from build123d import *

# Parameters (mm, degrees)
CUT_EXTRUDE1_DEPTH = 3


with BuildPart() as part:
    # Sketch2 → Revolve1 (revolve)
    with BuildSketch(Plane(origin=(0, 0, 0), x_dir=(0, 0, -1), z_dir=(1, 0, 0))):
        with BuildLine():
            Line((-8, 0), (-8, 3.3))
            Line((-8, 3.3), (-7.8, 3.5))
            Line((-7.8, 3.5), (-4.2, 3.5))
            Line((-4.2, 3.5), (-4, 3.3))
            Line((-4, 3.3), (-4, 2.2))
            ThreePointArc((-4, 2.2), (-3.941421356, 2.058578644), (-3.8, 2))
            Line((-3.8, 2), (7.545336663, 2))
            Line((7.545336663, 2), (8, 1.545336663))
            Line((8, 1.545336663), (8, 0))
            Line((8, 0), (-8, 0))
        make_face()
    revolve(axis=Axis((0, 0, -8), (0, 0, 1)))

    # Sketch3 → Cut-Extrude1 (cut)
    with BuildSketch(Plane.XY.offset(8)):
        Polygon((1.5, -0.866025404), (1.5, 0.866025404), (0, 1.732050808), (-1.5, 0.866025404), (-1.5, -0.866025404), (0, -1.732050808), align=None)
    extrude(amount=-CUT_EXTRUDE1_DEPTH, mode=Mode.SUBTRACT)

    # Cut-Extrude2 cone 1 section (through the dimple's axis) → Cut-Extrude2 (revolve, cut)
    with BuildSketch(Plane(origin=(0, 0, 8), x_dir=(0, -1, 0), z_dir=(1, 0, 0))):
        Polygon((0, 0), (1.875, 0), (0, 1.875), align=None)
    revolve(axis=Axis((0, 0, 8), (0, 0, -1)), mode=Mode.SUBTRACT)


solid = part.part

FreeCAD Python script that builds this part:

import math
import FreeCAD as App
import Part
import Sketcher
Q = App.Units.Quantity

doc = App.newDocument("Part")
body = doc.addObject("PartDesign::Body", "Body")

sketch1 = body.newObject("Sketcher::SketchObject", "Sketch")
sketch1.AttachmentSupport = (doc.getObject("YZ_Plane"), [""])
sketch1.MapMode = "FlatFace"
sketch1.addGeometry(Part.LineSegment(App.Vector(3.3, 8, 0), App.Vector(0, 8, 0)), False)
sketch1.addGeometry(Part.LineSegment(App.Vector(0, 8, 0), App.Vector(0, -8, 0)), False)
sketch1.addGeometry(Part.LineSegment(App.Vector(0, -8, 0), App.Vector(1.55, -8, 0)), False)
sketch1.addGeometry(Part.LineSegment(App.Vector(1.55, -8, 0), App.Vector(2, -7.55, 0)), False)
sketch1.addGeometry(Part.LineSegment(App.Vector(2, -7.55, 0), App.Vector(2, 3.8, 0)), False)
sketch1.addGeometry(Part.ArcOfCircle(Part.Circle(App.Vector(2.2, 3.8, 0), App.Vector(0, 0, 1), 0.2), math.radians(90), math.radians(180)), False)
sketch1.addGeometry(Part.LineSegment(App.Vector(2.2, 4, 0), App.Vector(3.3, 4, 0)), False)
sketch1.addGeometry(Part.LineSegment(App.Vector(3.3, 4, 0), App.Vector(3.5, 4.2, 0)), False)
sketch1.addGeometry(Part.LineSegment(App.Vector(3.5, 4.2, 0), App.Vector(3.5, 7.8, 0)), False)
sketch1.addGeometry(Part.LineSegment(App.Vector(3.5, 7.8, 0), App.Vector(3.3, 8, 0)), False)
sketch1.addConstraint(Sketcher.Constraint("Coincident", 0, 2, 1, 1))
sketch1.addConstraint(Sketcher.Constraint("Coincident", 1, 2, 2, 1))
sketch1.addConstraint(Sketcher.Constraint("Coincident", 2, 2, 3, 1))
sketch1.addConstraint(Sketcher.Constraint("Coincident", 3, 2, 4, 1))
sketch1.addConstraint(Sketcher.Constraint("Tangent", 4, 2, 5, 2))
sketch1.addConstraint(Sketcher.Constraint("Tangent", 5, 1, 6, 1))
sketch1.addConstraint(Sketcher.Constraint("Coincident", 6, 2, 7, 1))
sketch1.addConstraint(Sketcher.Constraint("Coincident", 7, 2, 8, 1))
sketch1.addConstraint(Sketcher.Constraint("Coincident", 8, 2, 9, 1))
sketch1.addConstraint(Sketcher.Constraint("Coincident", 9, 2, 0, 1))
sketch1.addConstraint(Sketcher.Constraint("Horizontal", 0))
sketch1.addConstraint(Sketcher.Constraint("Vertical", 1))
sketch1.addConstraint(Sketcher.Constraint("Horizontal", 2))
sketch1.addConstraint(Sketcher.Constraint("Vertical", 4))
sketch1.addConstraint(Sketcher.Constraint("Horizontal", 6))
sketch1.addConstraint(Sketcher.Constraint("Vertical", 8))
sketch1.addConstraint(Sketcher.Constraint("Symmetric", 0, 2, 1, 2, -1, 1))
sketch1.addConstraint(Sketcher.Constraint("Parallel", 3, 7))
sketch1.addConstraint(Sketcher.Constraint("Perpendicular", 7, 9))
sketch1.addConstraint(Sketcher.Constraint("Vertical", 6, 2, 9, 2))
sketch1.addConstraint(Sketcher.Constraint("Equal", 7, 9))
sketch1.addConstraint(Sketcher.Constraint("Radius", 5, Q("0.2 mm")))
sketch1.addConstraint(Sketcher.Constraint("DistanceY", 1, 2, 1, 1, Q("16 mm")))
sketch1.addConstraint(Sketcher.Constraint("DistanceX", 0, 2, 0, 1, Q("3.3 mm")))
sketch1.addConstraint(Sketcher.Constraint("DistanceX", 6, 1, 6, 2, Q("1.1 mm")))
sketch1.addConstraint(Sketcher.Constraint("DistanceY", 8, 1, 8, 2, Q("3.6 mm")))
sketch1.addConstraint(Sketcher.Constraint("DistanceY", -1, 1, 5, 1, Q("4 mm")))
sketch1.addConstraint(Sketcher.Constraint("Distance", 3, Q("0.642991 mm")))
revolution = body.newObject("PartDesign::Revolution", "Revolution")
revolution.Profile = sketch1
revolution.ReferenceAxis = (sketch1, ["V_Axis"])
revolution.Angle = 360

sketch2 = body.newObject("Sketcher::SketchObject", "Sketch001")
sketch2.AttachmentSupport = (doc.getObject("XY_Plane"), [""])
sketch2.MapMode = "FlatFace"
sketch2.AttachmentOffset = App.Placement(App.Vector(0, 0, 8), App.Rotation())
sketch2.addGeometry(Part.LineSegment(App.Vector(1.5, -0.9, 0), App.Vector(1.5, 0.9, 0)), False)
sketch2.addGeometry(Part.LineSegment(App.Vector(1.5, 0.9, 0), App.Vector(0, 1.7, 0)), False)
sketch2.addGeometry(Part.LineSegment(App.Vector(0, 1.7, 0), App.Vector(-1.5, 0.9, 0)), False)
sketch2.addGeometry(Part.LineSegment(App.Vector(-1.5, 0.9, 0), App.Vector(-1.5, -0.9, 0)), False)
sketch2.addGeometry(Part.LineSegment(App.Vector(-1.5, -0.9, 0), App.Vector(0, -1.7, 0)), False)
sketch2.addGeometry(Part.LineSegment(App.Vector(0, -1.7, 0), App.Vector(1.5, -0.9, 0)), False)
sketch2.addConstraint(Sketcher.Constraint("Coincident", 0, 2, 1, 1))
sketch2.addConstraint(Sketcher.Constraint("Coincident", 1, 2, 2, 1))
sketch2.addConstraint(Sketcher.Constraint("Coincident", 2, 2, 3, 1))
sketch2.addConstraint(Sketcher.Constraint("Coincident", 3, 2, 4, 1))
sketch2.addConstraint(Sketcher.Constraint("Coincident", 4, 2, 5, 1))
sketch2.addConstraint(Sketcher.Constraint("Coincident", 5, 2, 0, 1))
sketch2.addConstraint(Sketcher.Constraint("Vertical", 0))
sketch2.addConstraint(Sketcher.Constraint("Vertical", 3))
sketch2.addConstraint(Sketcher.Constraint("Symmetric", 0, 2, 3, 2, -1, 1))
sketch2.addConstraint(Sketcher.Constraint("Symmetric", 1, 2, 4, 2, -1, 1))
sketch2.addConstraint(Sketcher.Constraint("PointOnObject", 1, 2, -2))
sketch2.addConstraint(Sketcher.Constraint("Parallel", 2, 5))
sketch2.addConstraint(Sketcher.Constraint("Horizontal", 0, 2, 2, 2))
sketch2.addConstraint(Sketcher.Constraint("Angle", 1, Q("150 deg")))
sketch2.addConstraint(Sketcher.Constraint("DistanceX", 2, 2, 0, 2, Q("3 mm")))
sketch2.addConstraint(Sketcher.Constraint("DistanceY", 0, 1, 0, 2, Q("1.732051 mm")))
pocket1 = body.newObject("PartDesign::Pocket", "Pocket")
pocket1.Profile = sketch2
pocket1.Length = 3

sketch3 = body.newObject("Sketcher::SketchObject", "Sketch002")
sketch3.AttachmentSupport = (doc.getObject("YZ_Plane"), [""])
sketch3.MapMode = "FlatFace"
sketch3.addGeometry(Part.LineSegment(App.Vector(0, 8, 0), App.Vector(-1.9, 8, 0)), False)
sketch3.addGeometry(Part.LineSegment(App.Vector(-1.9, 8, 0), App.Vector(0, 6.1, 0)), False)
sketch3.addGeometry(Part.LineSegment(App.Vector(0, 6.1, 0), App.Vector(0, 8, 0)), False)
sketch3.addConstraint(Sketcher.Constraint("Coincident", 0, 2, 1, 1))
sketch3.addConstraint(Sketcher.Constraint("Coincident", 1, 2, 2, 1))
sketch3.addConstraint(Sketcher.Constraint("Coincident", 2, 2, 0, 1))
sketch3.addConstraint(Sketcher.Constraint("Horizontal", 0))
sketch3.addConstraint(Sketcher.Constraint("Vertical", 2))
sketch3.addConstraint(Sketcher.Constraint("PointOnObject", 1, 2, -2))
sketch3.addConstraint(Sketcher.Constraint("Equal", 0, 2))
sketch3.addConstraint(Sketcher.Constraint("DistanceY", -1, 1, 0, 2, Q("8 mm")))
sketch3.addConstraint(Sketcher.Constraint("DistanceX", 0, 2, 0, 1, Q("1.875 mm")))
groove = body.newObject("PartDesign::Groove", "Groove")
groove.Profile = sketch3
groove.ReferenceAxis = (sketch3, ["V_Axis"])
groove.Angle = 360

doc.recompute()
